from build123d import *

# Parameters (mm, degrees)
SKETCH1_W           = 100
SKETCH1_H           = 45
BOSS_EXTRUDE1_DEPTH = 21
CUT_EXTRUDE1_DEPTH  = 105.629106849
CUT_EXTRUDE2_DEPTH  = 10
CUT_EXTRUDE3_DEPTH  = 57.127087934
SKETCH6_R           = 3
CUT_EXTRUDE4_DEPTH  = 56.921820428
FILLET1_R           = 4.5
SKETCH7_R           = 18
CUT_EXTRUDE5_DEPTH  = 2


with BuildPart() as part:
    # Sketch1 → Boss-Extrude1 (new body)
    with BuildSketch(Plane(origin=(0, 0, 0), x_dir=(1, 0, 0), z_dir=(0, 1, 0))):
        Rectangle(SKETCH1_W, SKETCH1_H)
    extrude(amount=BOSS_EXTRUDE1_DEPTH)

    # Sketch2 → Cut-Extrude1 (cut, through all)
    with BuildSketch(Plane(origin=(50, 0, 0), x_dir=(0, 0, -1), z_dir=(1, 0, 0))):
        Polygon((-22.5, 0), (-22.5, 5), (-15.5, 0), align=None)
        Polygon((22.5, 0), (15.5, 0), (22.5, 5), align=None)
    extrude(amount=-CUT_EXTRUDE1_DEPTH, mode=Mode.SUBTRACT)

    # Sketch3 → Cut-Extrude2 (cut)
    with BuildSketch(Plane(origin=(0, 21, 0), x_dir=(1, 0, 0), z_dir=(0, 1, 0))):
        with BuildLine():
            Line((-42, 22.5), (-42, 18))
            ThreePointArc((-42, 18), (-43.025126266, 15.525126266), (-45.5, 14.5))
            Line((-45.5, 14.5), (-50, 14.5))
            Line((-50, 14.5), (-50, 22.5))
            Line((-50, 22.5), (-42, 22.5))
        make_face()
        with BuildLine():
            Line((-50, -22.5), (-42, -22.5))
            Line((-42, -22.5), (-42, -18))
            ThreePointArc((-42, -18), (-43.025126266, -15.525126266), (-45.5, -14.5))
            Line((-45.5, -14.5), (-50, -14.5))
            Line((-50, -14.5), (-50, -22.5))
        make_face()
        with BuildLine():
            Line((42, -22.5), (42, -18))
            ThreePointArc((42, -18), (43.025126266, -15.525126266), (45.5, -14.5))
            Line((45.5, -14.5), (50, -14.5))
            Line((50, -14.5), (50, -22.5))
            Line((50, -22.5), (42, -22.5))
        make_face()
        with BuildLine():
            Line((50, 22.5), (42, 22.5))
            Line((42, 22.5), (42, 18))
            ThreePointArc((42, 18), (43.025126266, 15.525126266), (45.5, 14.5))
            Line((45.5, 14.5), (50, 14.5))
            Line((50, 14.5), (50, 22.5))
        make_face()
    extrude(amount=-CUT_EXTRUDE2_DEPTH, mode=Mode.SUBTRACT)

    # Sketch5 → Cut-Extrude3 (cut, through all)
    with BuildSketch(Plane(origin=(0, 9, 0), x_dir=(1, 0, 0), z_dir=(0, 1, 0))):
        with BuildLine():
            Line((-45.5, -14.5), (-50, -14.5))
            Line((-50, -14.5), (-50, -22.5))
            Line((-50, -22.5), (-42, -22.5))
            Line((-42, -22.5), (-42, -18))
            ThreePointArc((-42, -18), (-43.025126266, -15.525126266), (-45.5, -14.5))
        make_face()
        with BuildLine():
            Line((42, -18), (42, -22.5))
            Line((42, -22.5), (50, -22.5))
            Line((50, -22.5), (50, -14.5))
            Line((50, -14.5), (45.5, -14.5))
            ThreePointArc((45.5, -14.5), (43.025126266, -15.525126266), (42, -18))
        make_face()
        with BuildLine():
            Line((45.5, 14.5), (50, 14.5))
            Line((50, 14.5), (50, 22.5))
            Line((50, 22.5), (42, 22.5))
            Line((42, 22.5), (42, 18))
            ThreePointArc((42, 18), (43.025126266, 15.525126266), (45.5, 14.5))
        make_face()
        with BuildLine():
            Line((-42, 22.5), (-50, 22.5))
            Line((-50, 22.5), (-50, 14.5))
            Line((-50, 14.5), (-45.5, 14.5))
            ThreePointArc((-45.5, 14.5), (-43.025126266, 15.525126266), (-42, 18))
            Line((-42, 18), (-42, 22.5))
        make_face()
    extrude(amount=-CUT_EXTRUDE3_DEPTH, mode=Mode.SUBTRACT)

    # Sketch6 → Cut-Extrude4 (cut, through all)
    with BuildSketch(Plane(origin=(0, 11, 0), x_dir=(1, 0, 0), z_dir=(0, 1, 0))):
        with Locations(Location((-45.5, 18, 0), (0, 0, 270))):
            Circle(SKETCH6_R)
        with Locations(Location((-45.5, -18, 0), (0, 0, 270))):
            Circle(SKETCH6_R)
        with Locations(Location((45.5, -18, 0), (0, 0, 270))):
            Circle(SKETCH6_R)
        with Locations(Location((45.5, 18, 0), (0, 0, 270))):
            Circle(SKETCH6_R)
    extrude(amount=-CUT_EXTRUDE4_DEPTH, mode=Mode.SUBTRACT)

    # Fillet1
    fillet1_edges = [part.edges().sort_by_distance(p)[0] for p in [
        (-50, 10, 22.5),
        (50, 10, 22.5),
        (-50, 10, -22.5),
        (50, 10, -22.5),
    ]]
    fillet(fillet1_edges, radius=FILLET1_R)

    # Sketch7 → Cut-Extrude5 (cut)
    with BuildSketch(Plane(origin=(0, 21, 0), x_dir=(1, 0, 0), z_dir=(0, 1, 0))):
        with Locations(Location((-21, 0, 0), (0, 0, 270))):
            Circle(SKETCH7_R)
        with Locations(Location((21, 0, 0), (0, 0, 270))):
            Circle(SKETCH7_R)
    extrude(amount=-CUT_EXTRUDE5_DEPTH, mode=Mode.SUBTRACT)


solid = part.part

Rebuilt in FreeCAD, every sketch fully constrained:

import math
import FreeCAD as App
import Part
import Sketcher

V = App.Vector


def edges_at(feature, points):
    """Names of the edges that pass closest to the given points."""
    edges = feature.Shape.Edges
    near = lambda p: min(range(len(edges)), key=lambda i: edges[i].distToShape(Part.Vertex(*p))[0])
    return sorted({f"Edge{near(p) + 1}" for p in points})


def add_polygon(sketch, points):
    """Adds a closed chain of lines whose ends are joined by coincident constraints."""
    first, n = sketch.GeometryCount, len(points)
    for a, b in zip(points, points[1:] + points[:1]):
        sketch.addGeometry(Part.LineSegment(App.Vector(*a, 0), App.Vector(*b, 0)), False)
    for i in range(n):
        sketch.addConstraint(Sketcher.Constraint("Coincident", first + i, 2, first + (i + 1) % n, 1))

doc = App.newDocument("Part")
body = doc.addObject("PartDesign::Body", "Body")

sketch1 = body.newObject("Sketcher::SketchObject", "Sketch")
sketch1.AttachmentSupport = (doc.getObject("XZ_Plane"), [""])
sketch1.MapMode = "FlatFace"
add_polygon(sketch1, [(-50, -22.5), (-50, 22.5), (50, 22.5), (50, -22.5)])
sketch1.addConstraint([
    Sketcher.Constraint("Vertical", 0),
    Sketcher.Constraint("Horizontal", 1),
    Sketcher.Constraint("Vertical", 2),
    Sketcher.Constraint("Horizontal", 3),
    Sketcher.Constraint("Symmetric", 0, 2, 2, 2, -1, 1),
    Sketcher.Constraint("DistanceX", 1, 1, 1, 2, 100.0),
    Sketcher.Constraint("DistanceY", 0, 1, 0, 2, 45.0),
])
pad1 = body.newObject("PartDesign::Pad", "Pad")
pad1.Profile = sketch1
pad1.Length = 21
pad1.Reversed = True

sketch2 = body.newObject("Sketcher::SketchObject", "Sketch001")
sketch2.AttachmentSupport = (doc.getObject("YZ_Plane"), [""])
sketch2.MapMode = "FlatFace"
sketch2.AttachmentOffset = App.Placement(V(0, 0, 50), App.Rotation())
add_polygon(sketch2, [(5, 22.5), (0, 22.5), (0, 15.5)])
add_polygon(sketch2, [(0, -15.5), (0, -22.5), (5, -22.5)])
sketch2.addConstraint([
    Sketcher.Constraint("Horizontal", 0),
    Sketcher.Constraint("Vertical", 1),
    Sketcher.Constraint("Vertical", 3),
    Sketcher.Constraint("Horizontal", 4),
    Sketcher.Constraint("Symmetric", 0, 2, 3, 2, -1, 1),
    Sketcher.Constraint("Symmetric", 1, 2, 5, 2, -1),
    Sketcher.Constraint("Vertical", 2, 2, 4, 2),
    Sketcher.Constraint("DistanceX", 0, 2, 0, 1, 5.0),
    Sketcher.Constraint("DistanceY", 1, 2, 1, 1, 7.0),
    Sketcher.Constraint("DistanceY", 3, 2, 1, 2, 38.0),
])
pocket1 = body.newObject("PartDesign::Pocket", "Pocket")
pocket1.Profile = sketch2
pocket1.Type = "ThroughAll"

sketch3 = body.newObject("Sketcher::SketchObject", "Sketch002")
sketch3.AttachmentSupport = (doc.getObject("XZ_Plane"), [""])
sketch3.MapMode = "FlatFace"
sketch3.AttachmentOffset = App.Placement(V(0, 0, -21), App.Rotation())
sketch3.addGeometry([
    Part.LineSegment(V(-42, -18, 0), V(-42, -22.5, 0)),
    Part.LineSegment(V(-42, -22.5, 0), V(-50, -22.5, 0)),
    Part.LineSegment(V(-50, -22.5, 0), V(-50, -14.5, 0)),
    Part.LineSegment(V(-50, -14.5, 0), V(-45.5, -14.5, 0)),
    Part.ArcOfCircle(Part.Circle(V(-45.5, -18, 0), V(0, 0, 1), 3.5), math.radians(0), math.radians(90)),
    Part.LineSegment(V(-50, 22.5, 0), V(-42, 22.5, 0)),
    Part.LineSegment(V(-42, 22.5, 0), V(-42, 18, 0)),
    Part.ArcOfCircle(Part.Circle(V(-45.5, 18, 0), V(0, 0, 1), 3.5), math.radians(-90), math.radians(0)),
    Part.LineSegment(V(-45.5, 14.5, 0), V(-50, 14.5, 0)),
    Part.LineSegment(V(-50, 14.5, 0), V(-50, 22.5, 0)),
    Part.LineSegment(V(42, 18, 0), V(42, 22.5, 0)),
    Part.LineSegment(V(42, 22.5, 0), V(50, 22.5, 0)),
    Part.LineSegment(V(50, 22.5, 0), V(50, 14.5, 0)),
    Part.LineSegment(V(50, 14.5, 0), V(45.5, 14.5, 0)),
    Part.ArcOfCircle(Part.Circle(V(45.5, 18, 0), V(0, 0, 1), 3.5), math.radians(-180), math.radians(-90)),
    Part.LineSegment(V(50, -22.5, 0), V(42, -22.5, 0)),
    Part.LineSegment(V(42, -22.5, 0), V(42, -18, 0)),
    Part.ArcOfCircle(Part.Circle(V(45.5, -18, 0), V(0, 0, 1), 3.5), math.radians(90), math.radians(180)),
    Part.LineSegment(V(45.5, -14.5, 0), V(50, -14.5, 0)),
    Part.LineSegment(V(50, -14.5, 0), V(50, -22.5, 0)),
], False)
sketch3.addConstraint([
    Sketcher.Constraint("Coincident", 0, 2, 1, 1),
    Sketcher.Constraint("Coincident", 1, 2, 2, 1),
    Sketcher.Constraint("Coincident", 2, 2, 3, 1),
    Sketcher.Constraint("Tangent", 3, 2, 4, 2),
    Sketcher.Constraint("Tangent", 4, 1, 0, 1),
    Sketcher.Constraint("Coincident", 5, 2, 6, 1),
    Sketcher.Constraint("Tangent", 6, 2, 7, 2),
    Sketcher.Constraint("Tangent", 7, 1, 8, 1),
    Sketcher.Constraint("Coincident", 8, 2, 9, 1),
    Sketcher.Constraint("Coincident", 9, 2, 5, 1),
    Sketcher.Constraint("Coincident", 10, 2, 11, 1),
    Sketcher.Constraint("Coincident", 11, 2, 12, 1),
    Sketcher.Constraint("Coincident", 12, 2, 13, 1),
    Sketcher.Constraint("Tangent", 13, 2, 14, 2),
    Sketcher.Constraint("Tangent", 14, 1, 10, 1),
    Sketcher.Constraint("Coincident", 15, 2, 16, 1),
    Sketcher.Constraint("Tangent", 16, 2, 17, 2),
    Sketcher.Constraint("Tangent", 17, 1, 18, 1),
    Sketcher.Constraint("Coincident", 18, 2, 19, 1),
    Sketcher.Constraint("Coincident", 19, 2, 15, 1),
    Sketcher.Constraint("Vertical", 0),
    Sketcher.Constraint("Horizontal", 1),
    Sketcher.Constraint("Vertical", 2),
    Sketcher.Constraint("Horizontal", 3),
    Sketcher.Constraint("Horizontal", 5),
    Sketcher.Constraint("Vertical", 6),
    Sketcher.Constraint("Horizontal", 8),
    Sketcher.Constraint("Vertical", 9),
    Sketcher.Constraint("Vertical", 10),
    Sketcher.Constraint("Horizontal", 11),
    Sketcher.Constraint("Vertical", 12),
    Sketcher.Constraint("Horizontal", 13),
    Sketcher.Constraint("Horizontal", 15),
    Sketcher.Constraint("Vertical", 16),
    Sketcher.Constraint("Horizontal", 18),
    Sketcher.Constraint("Vertical", 19),
    Sketcher.Constraint("Equal", 4, 7),
    Sketcher.Constraint("Equal", 7, 14),
    Sketcher.Constraint("Equal", 14, 17),
    Sketcher.Constraint("Symmetric", 4, 3, 14, 3, -1, 1),
    Sketcher.Constraint("Symmetric", 7, 3, 17, 3, -1, 1),
    Sketcher.Constraint("Symmetric", 1, 2, 11, 2, -1, 1),
    Sketcher.Constraint("Symmetric", 9, 2, 19, 2, -1, 1),
    Sketcher.Constraint("Symmetric", 7, 3, 14, 3, -2),
    Sketcher.Constraint("Symmetric", 9, 2, 11, 2, -2),
    Sketcher.Constraint("Equal", 18, 0),
    Sketcher.Constraint("Radius", 4, 3.5),
    Sketcher.Constraint("DistanceX", 1, 2, 1, 1, 8.0),
    Sketcher.Constraint("DistanceY", 4, 3, -1, 1, 18.0),
    Sketcher.Constraint("DistanceX", 0, 2, -1, 1, 42.0),
])
pocket2 = body.newObject("PartDesign::Pocket", "Pocket001")
pocket2.Profile = sketch3
pocket2.Length = 10
pocket2.Reversed = True

sketch4 = body.newObject("Sketcher::SketchObject", "Sketch003")
sketch4.AttachmentSupport = (doc.getObject("XZ_Plane"), [""])
sketch4.MapMode = "FlatFace"
sketch4.AttachmentOffset = App.Placement(V(0, 0, -9), App.Rotation())
sketch4.addGeometry([
    Part.LineSegment(V(-45.5, 14.5, 0), V(-50, 14.5, 0)),
    Part.LineSegment(V(-50, 14.5, 0), V(-50, 22.5, 0)),
    Part.LineSegment(V(-50, 22.5, 0), V(-42, 22.5, 0)),
    Part.LineSegment(V(-42, 22.5, 0), V(-42, 18, 0)),
    Part.ArcOfCircle(Part.Circle(V(-45.5, 18, 0), V(0, 0, 1), 3.5), math.radians(-90), math.radians(0)),
    Part.LineSegment(V(42, 18, 0), V(42, 22.5, 0)),
    Part.LineSegment(V(42, 22.5, 0), V(50, 22.5, 0)),
    Part.LineSegment(V(50, 22.5, 0), V(50, 14.5, 0)),
    Part.LineSegment(V(50, 14.5, 0), V(45.5, 14.5, 0)),
    Part.ArcOfCircle(Part.Circle(V(45.5, 18, 0), V(0, 0, 1), 3.5), math.radians(-180), math.radians(-90)),
    Part.LineSegment(V(45.5, -14.5, 0), V(50, -14.5, 0)),
    Part.LineSegment(V(50, -14.5, 0), V(50, -22.5, 0)),
    Part.LineSegment(V(50, -22.5, 0), V(42, -22.5, 0)),
    Part.LineSegment(V(42, -22.5, 0), V(42, -18, 0)),
    Part.ArcOfCircle(Part.Circle(V(45.5, -18, 0), V(0, 0, 1), 3.5), math.radians(90), math.radians(180)),
    Part.LineSegment(V(-42, -22.5, 0), V(-50, -22.5, 0)),
    Part.LineSegment(V(-50, -22.5, 0), V(-50, -14.5, 0)),
    Part.LineSegment(V(-50, -14.5, 0), V(-45.5, -14.5, 0)),
    Part.ArcOfCircle(Part.Circle(V(-45.5, -18, 0), V(0, 0, 1), 3.5), math.radians(0), math.radians(90)),
    Part.LineSegment(V(-42, -18, 0), V(-42, -22.5, 0)),
], False)
sketch4.addConstraint([
    Sketcher.Constraint("Coincident", 0, 2, 1, 1),
    Sketcher.Constraint("Coincident", 1, 2, 2, 1),
    Sketcher.Constraint("Coincident", 2, 2, 3, 1),
    Sketcher.Constraint("Tangent", 3, 2, 4, 2),
    Sketcher.Constraint("Tangent", 4, 1, 0, 1),
    Sketcher.Constraint("Coincident", 5, 2, 6, 1),
    Sketcher.Constraint("Coincident", 6, 2, 7, 1),
    Sketcher.Constraint("Coincident", 7, 2, 8, 1),
    Sketcher.Constraint("Tangent", 8, 2, 9, 2),
    Sketcher.Constraint("Tangent", 9, 1, 5, 1),
    Sketcher.Constraint("Coincident", 10, 2, 11, 1),
    Sketcher.Constraint("Coincident", 11, 2, 12, 1),
    Sketcher.Constraint("Coincident", 12, 2, 13, 1),
    Sketcher.Constraint("Tangent", 13, 2, 14, 2),
    Sketcher.Constraint("Tangent", 14, 1, 10, 1),
    Sketcher.Constraint("Coincident", 15, 2, 16, 1),
    Sketcher.Constraint("Coincident", 16, 2, 17, 1),
    Sketcher.Constraint("Tangent", 17, 2, 18, 2),
    Sketcher.Constraint("Tangent", 18, 1, 19, 1),
    Sketcher.Constraint("Coincident", 19, 2, 15, 1),
    Sketcher.Constraint("Horizontal", 0),
    Sketcher.Constraint("Vertical", 1),
    Sketcher.Constraint("Horizontal", 2),
    Sketcher.Constraint("Vertical", 3),
    Sketcher.Constraint("Vertical", 5),
    Sketcher.Constraint("Horizontal", 6),
    Sketcher.Constraint("Vertical", 7),
    Sketcher.Constraint("Horizontal", 8),
    Sketcher.Constraint("Horizontal", 10),
    Sketcher.Constraint("Vertical", 11),
    Sketcher.Constraint("Horizontal", 12),
    Sketcher.Constraint("Vertical", 13),
    Sketcher.Constraint("Horizontal", 15),
    Sketcher.Constraint("Vertical", 16),
    Sketcher.Constraint("Horizontal", 17),
    Sketcher.Constraint("Vertical", 19),
    Sketcher.Constraint("Equal", 4, 9),
    Sketcher.Constraint("Equal", 9, 14),
    Sketcher.Constraint("Equal", 14, 18),
    Sketcher.Constraint("Symmetric", 4, 3, 14, 3, -1, 1),
    Sketcher.Constraint("Symmetric", 9, 3, 18, 3, -1, 1),
    Sketcher.Constraint("Symmetric", 1, 2, 11, 2, -1, 1),
    Sketcher.Constraint("Symmetric", 6, 2, 15, 2, -1, 1),
    Sketcher.Constraint("Symmetric", 4, 3, 9, 3, -2),
    Sketcher.Constraint("Symmetric", 1, 2, 6, 2, -2),
    Sketcher.Constraint("Equal", 15, 1),
    Sketcher.Constraint("Radius", 4, 3.5),
    Sketcher.Constraint("DistanceX", 2, 1, 2, 2, 8.0),
    Sketcher.Constraint("DistanceY", -1, 1, 4, 3, 18.0),
    Sketcher.Constraint("DistanceX", 0, 2, -1, 1, 50.0),
])
pocket3 = body.newObject("PartDesign::Pocket", "Pocket002")
pocket3.Profile = sketch4
pocket3.Type = "ThroughAll"
pocket3.Reversed = True

sketch5 = body.newObject("Sketcher::SketchObject", "Sketch004")
sketch5.AttachmentSupport = (doc.getObject("XZ_Plane"), [""])
sketch5.MapMode = "FlatFace"
sketch5.AttachmentOffset = App.Placement(V(0, 0, -11), App.Rotation())
sketch5.addGeometry([
    Part.Circle(V(-45.5, -18, 0), V(0, 0, 1), 3),
    Part.Circle(V(-45.5, 18, 0), V(0, 0, 1), 3),
    Part.Circle(V(45.5, 18, 0), V(0, 0, 1), 3),
    Part.Circle(V(45.5, -18, 0), V(0, 0, 1), 3),
], False)
sketch5.addConstraint([
    Sketcher.Constraint("Equal", 0, 1),
    Sketcher.Constraint("Equal", 1, 2),
    Sketcher.Constraint("Equal", 2, 3),
    Sketcher.Constraint("Symmetric", 0, 3, 2, 3, -1, 1),
    Sketcher.Constraint("Symmetric", 1, 3, 3, 3, -1, 1),
    Sketcher.Constraint("Symmetric", 1, 3, 2, 3, -2),
    Sketcher.Constraint("Diameter", 0, 6.0),
    Sketcher.Constraint("DistanceY", 0, 3, -1, 1, 18.0),
    Sketcher.Constraint("DistanceX", 1, 3, 2, 3, 91.0),
])
pocket4 = body.newObject("PartDesign::Pocket", "Pocket003")
pocket4.Profile = sketch5
pocket4.Type = "ThroughAll"
pocket4.Reversed = True
doc.recompute()

fillet = body.newObject("PartDesign::Fillet", "Fillet")
fillet.Base = (pocket4, edges_at(pocket4, [
    (-50, 10, 22.5),
    (50, 10, 22.5),
    (-50, 10, -22.5),
    (50, 10, -22.5),
]))
fillet.Radius = 4.5

sketch6 = body.newObject("Sketcher::SketchObject", "Sketch005")
sketch6.AttachmentSupport = (doc.getObject("XZ_Plane"), [""])
sketch6.MapMode = "FlatFace"
sketch6.AttachmentOffset = App.Placement(V(0, 0, -21), App.Rotation())
sketch6.addGeometry([
    Part.Circle(V(-21, 0, 0), V(0, 0, 1), 18),
    Part.Circle(V(21, 0, 0), V(0, 0, 1), 18),
], False)
sketch6.addConstraint([
    Sketcher.Constraint("Equal", 0, 1),
    Sketcher.Constraint("Symmetric", 0, 3, 1, 3, -1, 1),
    Sketcher.Constraint("PointOnObject", 0, 3, -1),
    Sketcher.Constraint("Diameter", 0, 36.0),
    Sketcher.Constraint("DistanceX", 0, 3, -1, 1, 21.0),
])
pocket5 = body.newObject("PartDesign::Pocket", "Pocket004")
pocket5.Profile = sketch6
pocket5.Length = 2
pocket5.Reversed = True

doc.recompute()
